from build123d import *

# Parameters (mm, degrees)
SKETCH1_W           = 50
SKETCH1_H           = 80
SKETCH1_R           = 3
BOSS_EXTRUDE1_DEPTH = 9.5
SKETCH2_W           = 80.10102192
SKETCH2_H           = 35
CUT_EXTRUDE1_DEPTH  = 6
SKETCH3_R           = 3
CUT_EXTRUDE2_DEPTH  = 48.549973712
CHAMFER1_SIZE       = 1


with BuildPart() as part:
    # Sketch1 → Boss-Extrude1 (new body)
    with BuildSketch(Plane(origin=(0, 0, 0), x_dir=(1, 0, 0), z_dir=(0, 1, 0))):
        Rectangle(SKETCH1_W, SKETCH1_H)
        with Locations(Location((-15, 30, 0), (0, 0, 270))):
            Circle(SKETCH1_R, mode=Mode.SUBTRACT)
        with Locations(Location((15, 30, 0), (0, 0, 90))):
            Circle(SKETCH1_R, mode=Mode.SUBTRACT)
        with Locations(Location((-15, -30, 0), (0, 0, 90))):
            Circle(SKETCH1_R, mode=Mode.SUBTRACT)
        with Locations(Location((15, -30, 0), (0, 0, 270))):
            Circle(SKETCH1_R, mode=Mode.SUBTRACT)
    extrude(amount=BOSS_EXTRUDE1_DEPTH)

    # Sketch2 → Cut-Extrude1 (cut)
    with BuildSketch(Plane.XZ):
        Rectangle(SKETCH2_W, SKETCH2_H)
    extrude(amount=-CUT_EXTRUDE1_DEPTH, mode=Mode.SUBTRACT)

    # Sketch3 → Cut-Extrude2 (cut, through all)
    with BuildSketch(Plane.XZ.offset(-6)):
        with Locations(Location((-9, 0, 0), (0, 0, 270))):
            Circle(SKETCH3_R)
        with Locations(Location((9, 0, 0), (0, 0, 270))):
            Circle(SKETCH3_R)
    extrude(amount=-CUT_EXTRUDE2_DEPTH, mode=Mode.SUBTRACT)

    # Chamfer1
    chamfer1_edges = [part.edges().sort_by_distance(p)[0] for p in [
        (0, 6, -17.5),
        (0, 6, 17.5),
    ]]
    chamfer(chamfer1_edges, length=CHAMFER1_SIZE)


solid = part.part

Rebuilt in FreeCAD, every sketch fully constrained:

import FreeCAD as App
import Part
import Sketcher
from FreeCAD import Vector
Q = App.Units.Quantity


def edges_at(feature, points):
    """Names of the edges that pass closest to the given points."""
    edges = feature.Shape.Edges
    near = lambda p: min(range(len(edges)), key=lambda i: edges[i].distToShape(Part.Vertex(*p))[0])
    return sorted({f"Edge{near(p) + 1}" for p in points})


def add_polygon(sketch, points):
    """Adds a closed chain of lines whose ends are joined by coincident constraints."""
    first, n = sketch.GeometryCount, len(points)
    for a, b in zip(points, points[1:] + points[:1]):
        sketch.addGeometry(Part.LineSegment(App.Vector(*a, 0), App.Vector(*b, 0)), False)
    for i in range(n):
        sketch.addConstraint(Sketcher.Constraint("Coincident", first + i, 2, first + (i + 1) % n, 1))

doc = App.newDocument("Part")
body = doc.addObject("PartDesign::Body", "Body")

sketch1 = body.newObject("Sketcher::SketchObject", "Sketch")
sketch1.AttachmentSupport = (doc.getObject("XZ_Plane"), [""])
sketch1.MapMode = "FlatFace"
add_polygon(sketch1, [(-25, -40), (-25, 40), (25, 40), (25, -40)])
sketch1.addGeometry(Part.Circle(Vector(-15, 30, 0), Vector(0, 0, 1), 3), False)
sketch1.addGeometry(Part.Circle(Vector(15, 30, 0), Vector(0, 0, 1), 3), False)
sketch1.addGeometry(Part.Circle(Vector(-15, -30, 0), Vector(0, 0, 1), 3), False)
sketch1.addGeometry(Part.Circle(Vector(15, -30, 0), Vector(0, 0, 1), 3), False)
sketch1.addConstraint(Sketcher.Constraint("Vertical", 0))
sketch1.addConstraint(Sketcher.Constraint("Horizontal", 1))
sketch1.addConstraint(Sketcher.Constraint("Vertical", 2))
sketch1.addConstraint(Sketcher.Constraint("Horizontal", 3))
sketch1.addConstraint(Sketcher.Constraint("Equal", 4, 5))
sketch1.addConstraint(Sketcher.Constraint("Equal", 5, 6))
sketch1.addConstraint(Sketcher.Constraint("Equal", 6, 7))
sketch1.addConstraint(Sketcher.Constraint("Symmetric", 5, 3, 6, 3, -1, 1))
sketch1.addConstraint(Sketcher.Constraint("Symmetric", 4, 3, 7, 3, -1, 1))
sketch1.addConstraint(Sketcher.Constraint("Symmetric", 0, 2, 2, 2, -1, 1))
sketch1.addConstraint(Sketcher.Constraint("Symmetric", 4, 3, 5, 3, -2))
sketch1.addConstraint(Sketcher.Constraint("Diameter", 4, Q("6 mm")))
sketch1.addConstraint(Sketcher.Constraint("DistanceX", 1, 1, 1, 2, Q("50 mm")))
sketch1.addConstraint(Sketcher.Constraint("DistanceY", 0, 1, 0, 2, Q("80 mm")))
sketch1.addConstraint(Sketcher.Constraint("DistanceX", 4, 3, -1, 1, Q("15 mm")))
sketch1.addConstraint(Sketcher.Constraint("DistanceY", -1, 1, 4, 3, Q("30 mm")))
pad1 = body.newObject("PartDesign::Pad", "Pad")
pad1.Profile = sketch1
pad1.Length = 9.5
pad1.Reversed = True

sketch2 = body.newObject("Sketcher::SketchObject", "Sketch001")
sketch2.AttachmentSupport = (doc.getObject("XZ_Plane"), [""])
sketch2.MapMode = "FlatFace"
add_polygon(sketch2, [(-40, 18), (-40, -18), (40, -18), (40, 18)])
sketch2.addConstraint(Sketcher.Constraint("Vertical", 0))
sketch2.addConstraint(Sketcher.Constraint("Horizontal", 1))
sketch2.addConstraint(Sketcher.Constraint("Vertical", 2))
sketch2.addConstraint(Sketcher.Constraint("Horizontal", 3))
sketch2.addConstraint(Sketcher.Constraint("Symmetric", 0, 2, 2, 2, -1, 1))
sketch2.addConstraint(Sketcher.Constraint("DistanceY", 0, 2, 0, 1, Q("35 mm")))
sketch2.addConstraint(Sketcher.Constraint("DistanceX", 1, 1, 1, 2, Q("80.101022 mm")))
pocket1 = body.newObject("PartDesign::Pocket", "Pocket")
pocket1.Profile = sketch2
pocket1.Length = 6

sketch3 = body.newObject("Sketcher::SketchObject", "Sketch002")
sketch3.AttachmentSupport = (doc.getObject("XZ_Plane"), [""])
sketch3.MapMode = "FlatFace"
sketch3.AttachmentOffset = App.Placement(Vector(0, 0, -6), App.Rotation())
sketch3.addGeometry(Part.Circle(Vector(-9, 0, 0), Vector(0, 0, 1), 3), False)
sketch3.addGeometry(Part.Circle(Vector(9, 0, 0), Vector(0, 0, 1), 3), False)
sketch3.addConstraint(Sketcher.Constraint("Equal", 0, 1))
sketch3.addConstraint(Sketcher.Constraint("Symmetric", 0, 3, 1, 3, -1, 1))
sketch3.addConstraint(Sketcher.Constraint("PointOnObject", 0, 3, -1))
sketch3.addConstraint(Sketcher.Constraint("Diameter", 0, Q("6 mm")))
sketch3.addConstraint(Sketcher.Constraint("DistanceX", 0, 3, -1, 1, Q("9 mm")))
pocket2 = body.newObject("PartDesign::Pocket", "Pocket001")
pocket2.Profile = sketch3
pocket2.Type = "ThroughAll"
doc.recompute()

chamfer = body.newObject("PartDesign::Chamfer", "Chamfer")
chamfer.Base = (pocket2, edges_at(pocket2, [(0, 6, -17.5), (0, 6, 17.5)]))
chamfer.Size = 1

doc.recompute()
